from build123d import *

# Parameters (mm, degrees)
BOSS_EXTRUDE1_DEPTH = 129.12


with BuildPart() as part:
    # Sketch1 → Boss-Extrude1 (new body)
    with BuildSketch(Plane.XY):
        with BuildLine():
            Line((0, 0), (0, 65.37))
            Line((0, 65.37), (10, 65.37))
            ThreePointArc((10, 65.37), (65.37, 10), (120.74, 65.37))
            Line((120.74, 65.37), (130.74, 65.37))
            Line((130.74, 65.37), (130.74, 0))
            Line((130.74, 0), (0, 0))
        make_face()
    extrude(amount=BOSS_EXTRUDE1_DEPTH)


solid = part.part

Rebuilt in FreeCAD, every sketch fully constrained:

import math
import FreeCAD as App
import Part
import Sketcher
from FreeCAD import Vector

doc = App.newDocument("Part")
params = doc.addObject("Spreadsheet::Sheet", "Params")
for row, (alias, value) in enumerate([
    ("sketch1_width", "10 mm"),
    ("sketch1_radius", "55.37 mm"),
    ("sketch1_height", "65.37 mm"),
    ("pad1_length", "129.12 mm"),
], start=1):
    params.set(f"A{row}", alias)
    params.set(f"B{row}", "=" + value)
    params.setAlias(f"B{row}", alias)

body = doc.addObject("PartDesign::Body", "Body")

sketch1 = doc.addObject("Sketcher::SketchObject", "Sketch")
body.addObject(sketch1)
sketch1.AttachmentSupport = (doc.XY_Plane, [""])
sketch1.MapMode = "FlatFace"
sketch1.addGeometry(Part.LineSegment(Vector(0, 65.37, 0), Vector(0, 0, 0)), False)
sketch1.addGeometry(Part.LineSegment(Vector(0, 0, 0), Vector(130.74, 0, 0)), False)
sketch1.addGeometry(Part.LineSegment(Vector(130.74, 0, 0), Vector(130.74, 65.37, 0)), False)
sketch1.addGeometry(Part.LineSegment(Vector(130.74, 65.37, 0), Vector(120.74, 65.37, 0)), False)
sketch1.addGeometry(Part.ArcOfCircle(Part.Circle(Vector(65.37, 65.37, 0), Vector(0, 0, 1), 55.37), math.radians(180), math.radians(360)), False)
sketch1.addGeometry(Part.LineSegment(Vector(10, 65.37, 0), Vector(0, 65.37, 0)), False)
sketch1.addConstraint(Sketcher.Constraint("Coincident", 0, 2, 1, 1))
sketch1.addConstraint(Sketcher.Constraint("Coincident", 1, 2, 2, 1))
sketch1.addConstraint(Sketcher.Constraint("Coincident", 2, 2, 3, 1))
sketch1.addConstraint(Sketcher.Constraint("Coincident", 3, 2, 4, 2))
sketch1.addConstraint(Sketcher.Constraint("Coincident", 4, 1, 5, 1))
sketch1.addConstraint(Sketcher.Constraint("Coincident", 5, 2, 0, 1))
sketch1.addConstraint(Sketcher.Constraint("Vertical", 0))
sketch1.addConstraint(Sketcher.Constraint("Horizontal", 1))
sketch1.addConstraint(Sketcher.Constraint("Vertical", 2))
sketch1.addConstraint(Sketcher.Constraint("Horizontal", 3))
sketch1.addConstraint(Sketcher.Constraint("Horizontal", 5))
sketch1.addConstraint(Sketcher.Constraint("Coincident", 0, 2, -1, 1))
sketch1.addConstraint(Sketcher.Constraint("Horizontal", 4, 3, 2, 2))
sketch1.addConstraint(Sketcher.Constraint("Horizontal", 3, 2, 4, 1))
sketch1.addConstraint(Sketcher.Constraint("Equal", 3, 5))
sketch1.addConstraint(Sketcher.Constraint("DistanceX", 3, 2, 3, 1, 10.0))
sketch1.addConstraint(Sketcher.Constraint("Radius", 4, 55.37))
sketch1.addConstraint(Sketcher.Constraint("DistanceY", 0, 2, 0, 1, 65.37))
sketch1.setExpression("Constraints[15]", "Params.sketch1_width")
sketch1.setExpression("Constraints[16]", "Params.sketch1_radius")
sketch1.setExpression("Constraints[17]", "Params.sketch1_height")
pad1 = doc.addObject("PartDesign::Pad", "Pad")
body.addObject(pad1)
pad1.Profile = sketch1
pad1.setExpression("Length", "Params.pad1_length")

doc.recompute()
